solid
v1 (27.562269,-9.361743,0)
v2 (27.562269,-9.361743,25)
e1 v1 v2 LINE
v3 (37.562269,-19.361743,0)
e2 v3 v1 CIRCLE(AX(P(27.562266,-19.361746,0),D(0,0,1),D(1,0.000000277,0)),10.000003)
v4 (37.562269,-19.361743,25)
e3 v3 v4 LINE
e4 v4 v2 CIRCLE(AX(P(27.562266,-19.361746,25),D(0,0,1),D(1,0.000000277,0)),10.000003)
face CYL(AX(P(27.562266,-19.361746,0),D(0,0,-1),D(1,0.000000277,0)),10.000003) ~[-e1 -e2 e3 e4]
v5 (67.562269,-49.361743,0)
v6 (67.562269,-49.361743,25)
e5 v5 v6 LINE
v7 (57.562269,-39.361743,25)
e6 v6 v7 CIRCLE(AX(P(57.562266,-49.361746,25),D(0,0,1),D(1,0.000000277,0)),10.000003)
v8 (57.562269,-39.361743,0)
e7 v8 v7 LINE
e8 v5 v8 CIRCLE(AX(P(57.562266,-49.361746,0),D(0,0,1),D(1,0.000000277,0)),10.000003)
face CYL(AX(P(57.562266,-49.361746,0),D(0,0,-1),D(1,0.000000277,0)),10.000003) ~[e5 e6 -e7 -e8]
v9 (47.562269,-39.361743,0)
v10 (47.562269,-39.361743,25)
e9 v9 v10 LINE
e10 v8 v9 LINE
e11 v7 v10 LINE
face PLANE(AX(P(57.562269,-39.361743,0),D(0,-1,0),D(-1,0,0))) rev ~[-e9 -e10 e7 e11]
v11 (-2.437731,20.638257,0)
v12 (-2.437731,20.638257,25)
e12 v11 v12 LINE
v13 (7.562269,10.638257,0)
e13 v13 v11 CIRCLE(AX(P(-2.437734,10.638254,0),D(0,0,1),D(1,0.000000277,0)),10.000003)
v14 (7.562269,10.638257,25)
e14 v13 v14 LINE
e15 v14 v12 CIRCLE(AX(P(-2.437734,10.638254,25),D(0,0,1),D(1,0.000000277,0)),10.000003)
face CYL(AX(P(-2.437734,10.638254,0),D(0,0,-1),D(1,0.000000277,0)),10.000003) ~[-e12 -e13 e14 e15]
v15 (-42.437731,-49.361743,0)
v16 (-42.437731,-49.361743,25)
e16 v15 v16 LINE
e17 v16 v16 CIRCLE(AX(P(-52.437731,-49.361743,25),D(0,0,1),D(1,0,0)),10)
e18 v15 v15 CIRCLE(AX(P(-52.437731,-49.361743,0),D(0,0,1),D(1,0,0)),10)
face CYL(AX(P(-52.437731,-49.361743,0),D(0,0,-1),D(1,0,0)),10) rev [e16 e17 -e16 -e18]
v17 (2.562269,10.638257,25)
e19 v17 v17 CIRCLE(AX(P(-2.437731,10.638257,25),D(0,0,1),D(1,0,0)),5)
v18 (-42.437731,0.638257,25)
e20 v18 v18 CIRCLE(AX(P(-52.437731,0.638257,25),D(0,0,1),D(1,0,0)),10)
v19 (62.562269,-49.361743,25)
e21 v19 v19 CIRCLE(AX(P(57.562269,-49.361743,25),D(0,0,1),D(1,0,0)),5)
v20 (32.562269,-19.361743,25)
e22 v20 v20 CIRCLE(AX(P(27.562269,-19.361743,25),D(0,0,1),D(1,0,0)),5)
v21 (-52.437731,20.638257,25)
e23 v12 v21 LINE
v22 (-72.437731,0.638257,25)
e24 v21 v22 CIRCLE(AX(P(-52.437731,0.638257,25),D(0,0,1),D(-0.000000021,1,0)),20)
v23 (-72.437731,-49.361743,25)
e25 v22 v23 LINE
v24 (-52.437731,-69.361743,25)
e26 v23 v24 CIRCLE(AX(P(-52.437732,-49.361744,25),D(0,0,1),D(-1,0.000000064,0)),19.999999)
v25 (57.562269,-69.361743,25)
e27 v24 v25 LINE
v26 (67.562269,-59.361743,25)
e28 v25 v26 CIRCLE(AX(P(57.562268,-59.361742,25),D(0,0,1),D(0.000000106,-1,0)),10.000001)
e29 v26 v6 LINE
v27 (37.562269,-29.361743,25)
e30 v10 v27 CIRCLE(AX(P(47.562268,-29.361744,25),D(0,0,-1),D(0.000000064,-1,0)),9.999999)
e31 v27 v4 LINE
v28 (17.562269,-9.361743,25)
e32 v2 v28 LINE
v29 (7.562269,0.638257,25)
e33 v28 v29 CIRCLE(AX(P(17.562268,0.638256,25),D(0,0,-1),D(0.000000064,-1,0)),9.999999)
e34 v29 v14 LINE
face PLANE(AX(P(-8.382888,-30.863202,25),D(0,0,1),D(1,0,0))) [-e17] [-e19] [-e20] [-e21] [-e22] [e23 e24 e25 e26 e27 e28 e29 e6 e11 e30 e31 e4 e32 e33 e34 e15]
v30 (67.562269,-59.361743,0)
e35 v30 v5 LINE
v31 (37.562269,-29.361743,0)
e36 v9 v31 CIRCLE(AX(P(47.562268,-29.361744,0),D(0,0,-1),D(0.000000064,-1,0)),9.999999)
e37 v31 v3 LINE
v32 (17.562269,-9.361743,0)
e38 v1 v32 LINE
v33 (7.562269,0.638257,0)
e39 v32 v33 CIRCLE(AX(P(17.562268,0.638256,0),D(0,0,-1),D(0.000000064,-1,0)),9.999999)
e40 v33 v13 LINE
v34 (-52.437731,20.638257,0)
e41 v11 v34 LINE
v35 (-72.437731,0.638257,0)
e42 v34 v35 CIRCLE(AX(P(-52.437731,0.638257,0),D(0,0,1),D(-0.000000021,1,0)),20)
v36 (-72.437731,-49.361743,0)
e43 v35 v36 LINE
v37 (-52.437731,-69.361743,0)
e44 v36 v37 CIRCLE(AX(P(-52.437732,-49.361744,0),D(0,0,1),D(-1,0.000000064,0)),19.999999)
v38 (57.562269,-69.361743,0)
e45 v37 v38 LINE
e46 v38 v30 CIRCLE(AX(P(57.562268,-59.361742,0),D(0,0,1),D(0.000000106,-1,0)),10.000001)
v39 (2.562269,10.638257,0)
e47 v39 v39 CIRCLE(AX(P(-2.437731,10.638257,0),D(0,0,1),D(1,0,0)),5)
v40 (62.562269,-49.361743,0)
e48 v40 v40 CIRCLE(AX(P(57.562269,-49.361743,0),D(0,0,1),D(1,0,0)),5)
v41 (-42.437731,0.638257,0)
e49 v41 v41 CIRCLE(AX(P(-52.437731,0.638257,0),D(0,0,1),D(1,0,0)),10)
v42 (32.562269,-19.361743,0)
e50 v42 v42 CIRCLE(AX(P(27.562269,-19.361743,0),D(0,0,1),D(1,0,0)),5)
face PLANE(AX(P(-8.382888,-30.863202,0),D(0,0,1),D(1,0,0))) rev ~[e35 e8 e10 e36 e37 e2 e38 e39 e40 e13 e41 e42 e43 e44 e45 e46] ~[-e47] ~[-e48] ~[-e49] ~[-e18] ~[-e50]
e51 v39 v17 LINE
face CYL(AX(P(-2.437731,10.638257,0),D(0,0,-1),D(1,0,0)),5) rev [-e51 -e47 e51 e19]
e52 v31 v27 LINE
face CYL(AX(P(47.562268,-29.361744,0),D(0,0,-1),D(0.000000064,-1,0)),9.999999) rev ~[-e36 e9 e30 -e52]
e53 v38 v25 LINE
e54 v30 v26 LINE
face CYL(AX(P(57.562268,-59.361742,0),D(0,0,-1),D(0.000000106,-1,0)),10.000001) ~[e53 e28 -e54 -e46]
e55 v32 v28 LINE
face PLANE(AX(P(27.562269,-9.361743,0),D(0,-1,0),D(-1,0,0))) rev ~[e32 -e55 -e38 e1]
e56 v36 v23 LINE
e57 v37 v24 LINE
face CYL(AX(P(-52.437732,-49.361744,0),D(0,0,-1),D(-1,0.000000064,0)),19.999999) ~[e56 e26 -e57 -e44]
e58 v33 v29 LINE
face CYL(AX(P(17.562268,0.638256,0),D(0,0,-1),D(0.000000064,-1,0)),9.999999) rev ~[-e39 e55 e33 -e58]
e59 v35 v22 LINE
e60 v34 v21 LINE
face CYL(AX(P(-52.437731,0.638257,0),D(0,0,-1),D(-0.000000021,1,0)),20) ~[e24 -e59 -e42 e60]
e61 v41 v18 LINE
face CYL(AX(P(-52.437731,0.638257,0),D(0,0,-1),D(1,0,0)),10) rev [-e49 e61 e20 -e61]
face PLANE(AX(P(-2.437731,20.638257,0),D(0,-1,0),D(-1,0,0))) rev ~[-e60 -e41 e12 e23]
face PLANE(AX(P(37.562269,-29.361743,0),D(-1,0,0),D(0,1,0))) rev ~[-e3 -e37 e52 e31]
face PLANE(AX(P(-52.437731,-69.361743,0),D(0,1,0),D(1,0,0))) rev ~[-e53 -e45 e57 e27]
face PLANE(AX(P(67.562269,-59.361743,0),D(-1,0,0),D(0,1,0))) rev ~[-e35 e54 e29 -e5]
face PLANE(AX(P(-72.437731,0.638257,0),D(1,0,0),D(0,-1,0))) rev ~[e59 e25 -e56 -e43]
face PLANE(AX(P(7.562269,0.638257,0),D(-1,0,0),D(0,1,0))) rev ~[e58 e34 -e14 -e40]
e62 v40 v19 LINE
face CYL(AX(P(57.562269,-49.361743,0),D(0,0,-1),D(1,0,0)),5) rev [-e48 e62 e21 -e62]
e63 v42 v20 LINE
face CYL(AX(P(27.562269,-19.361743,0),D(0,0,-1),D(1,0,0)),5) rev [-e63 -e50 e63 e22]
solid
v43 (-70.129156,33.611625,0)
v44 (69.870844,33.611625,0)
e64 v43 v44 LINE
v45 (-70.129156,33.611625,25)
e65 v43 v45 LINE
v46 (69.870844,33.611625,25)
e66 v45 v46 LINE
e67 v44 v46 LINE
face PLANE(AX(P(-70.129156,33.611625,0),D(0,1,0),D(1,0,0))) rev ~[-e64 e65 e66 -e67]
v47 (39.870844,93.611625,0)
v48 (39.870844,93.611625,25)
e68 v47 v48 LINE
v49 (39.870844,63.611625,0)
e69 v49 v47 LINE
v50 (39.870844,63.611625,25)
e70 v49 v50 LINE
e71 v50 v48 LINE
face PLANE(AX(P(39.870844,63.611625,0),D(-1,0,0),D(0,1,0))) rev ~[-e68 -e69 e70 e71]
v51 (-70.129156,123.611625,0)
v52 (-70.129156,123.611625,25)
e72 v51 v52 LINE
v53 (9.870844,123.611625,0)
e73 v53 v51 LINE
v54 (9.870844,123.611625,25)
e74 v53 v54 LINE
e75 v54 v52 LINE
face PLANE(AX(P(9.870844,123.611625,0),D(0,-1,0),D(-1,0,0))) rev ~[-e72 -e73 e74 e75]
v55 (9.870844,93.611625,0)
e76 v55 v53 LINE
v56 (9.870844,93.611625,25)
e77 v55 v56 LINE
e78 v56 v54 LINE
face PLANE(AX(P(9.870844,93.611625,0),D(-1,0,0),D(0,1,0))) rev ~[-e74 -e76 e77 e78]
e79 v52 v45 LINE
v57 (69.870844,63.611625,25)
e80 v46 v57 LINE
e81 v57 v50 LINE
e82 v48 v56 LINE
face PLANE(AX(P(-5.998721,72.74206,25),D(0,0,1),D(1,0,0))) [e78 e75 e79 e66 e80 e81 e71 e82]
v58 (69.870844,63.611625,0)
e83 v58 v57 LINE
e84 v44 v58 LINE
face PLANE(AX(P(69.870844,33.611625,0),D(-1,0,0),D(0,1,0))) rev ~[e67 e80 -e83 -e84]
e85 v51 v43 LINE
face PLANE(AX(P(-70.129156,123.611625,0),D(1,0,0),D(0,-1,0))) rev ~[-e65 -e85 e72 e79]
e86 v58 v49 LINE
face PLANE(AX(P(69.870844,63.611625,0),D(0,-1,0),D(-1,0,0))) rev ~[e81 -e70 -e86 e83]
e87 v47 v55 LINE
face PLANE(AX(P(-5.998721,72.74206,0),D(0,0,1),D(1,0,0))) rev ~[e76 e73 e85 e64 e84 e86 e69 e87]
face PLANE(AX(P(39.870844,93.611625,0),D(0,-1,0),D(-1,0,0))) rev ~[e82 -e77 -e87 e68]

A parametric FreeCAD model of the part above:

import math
import FreeCAD as App
import Part
import Sketcher
from FreeCAD import Vector
Q = App.Units.Quantity

doc = App.newDocument("Part")
params = doc.addObject("Spreadsheet::Sheet", "Params")
for row, (alias, value) in enumerate([
    ("sketch1_diameter", "20 mm"),
    ("sketch1_diameter2", "10 mm"),
    ("sketch1_radius", "19.999999 mm"),
    ("sketch1_width", "140 mm"),
    ("sketch1_width2", "30 mm"),
    ("pad1_length", "25 mm"),
], start=1):
    params.set(f"A{row}", alias)
    params.set(f"B{row}", "=" + value)
    params.setAlias(f"B{row}", alias)

body = doc.addObject("PartDesign::Body", "Body")
body.AllowCompound = True

sketch1 = doc.addObject("Sketcher::SketchObject", "Sketch")
body.addObject(sketch1)
sketch1.AttachmentSupport = (doc.XY_Plane, [""])
sketch1.MapMode = "FlatFace"
sketch1.addGeometry(Part.ArcOfCircle(Part.Circle(Vector(-52.437732, -49.361744, 0), Vector(0, 0, 1), 19.999999), math.radians(179.999996), math.radians(270.000004)), False)
sketch1.addGeometry(Part.LineSegment(Vector(-52.437731, -69.361743, 0), Vector(57.562269, -69.361743, 0)), False)
sketch1.addGeometry(Part.ArcOfCircle(Part.Circle(Vector(57.562268, -59.361742, 0), Vector(0, 0, 1), 10.000001), math.radians(-89.999994), math.radians(-0.000006)), False)
sketch1.addGeometry(Part.LineSegment(Vector(67.562269, -59.361743, 0), Vector(67.562269, -49.361743, 0)), False)
sketch1.addGeometry(Part.ArcOfCircle(Part.Circle(Vector(57.562266, -49.361746, 0), Vector(0, 0, 1), 10.000003), math.radians(0.000016), math.radians(89.999984)), False)
sketch1.addGeometry(Part.LineSegment(Vector(57.562269, -39.361743, 0), Vector(47.562269, -39.361743, 0)), False)
sketch1.addGeometry(Part.ArcOfCircle(Part.Circle(Vector(47.562268, -29.361744, 0), Vector(0, 0, 1), 9.999999), math.radians(179.999996), math.radians(270.000004)), False)
sketch1.addGeometry(Part.LineSegment(Vector(37.562269, -29.361743, 0), Vector(37.562269, -19.361743, 0)), False)
sketch1.addGeometry(Part.ArcOfCircle(Part.Circle(Vector(27.562266, -19.361746, 0), Vector(0, 0, 1), 10.000003), math.radians(0.000016), math.radians(89.999984)), False)
sketch1.addGeometry(Part.LineSegment(Vector(27.562269, -9.361743, 0), Vector(17.562269, -9.361743, 0)), False)
sketch1.addGeometry(Part.ArcOfCircle(Part.Circle(Vector(17.562268, 0.638256, 0), Vector(0, 0, 1), 9.999999), math.radians(179.999996), math.radians(270.000004)), False)
sketch1.addGeometry(Part.LineSegment(Vector(7.562269, 0.638257, 0), Vector(7.562269, 10.638257, 0)), False)
sketch1.addGeometry(Part.ArcOfCircle(Part.Circle(Vector(-2.437734, 10.638254, 0), Vector(0, 0, 1), 10.000003), math.radians(0.000016), math.radians(89.999984)), False)
sketch1.addGeometry(Part.LineSegment(Vector(-2.437731, 20.638257, 0), Vector(-52.437731, 20.638257, 0)), False)
sketch1.addGeometry(Part.ArcOfCircle(Part.Circle(Vector(-52.437731, 0.638257, 0), Vector(0, 0, 1), 20), math.radians(90.000001), math.radians(179.999999)), False)
sketch1.addGeometry(Part.LineSegment(Vector(-72.437731, 0.638257, 0), Vector(-72.437731, -49.361743, 0)), False)
sketch1.addGeometry(Part.Circle(Vector(-52.437731, -49.361743, 0), Vector(0, 0, 1), 10), False)
sketch1.addGeometry(Part.Circle(Vector(57.562269, -49.361743, 0), Vector(0, 0, 1), 5), False)
sketch1.addGeometry(Part.Circle(Vector(-52.437731, 0.638257, 0), Vector(0, 0, 1), 10), False)
sketch1.addGeometry(Part.Circle(Vector(-2.437731, 10.638257, 0), Vector(0, 0, 1), 5), False)
sketch1.addGeometry(Part.Circle(Vector(27.562269, -19.361743, 0), Vector(0, 0, 1), 5), False)
sketch1.addGeometry(Part.LineSegment(Vector(-70.129156, 123.611625, 0), Vector(-70.129156, 33.611625, 0)), False)
sketch1.addGeometry(Part.LineSegment(Vector(-70.129156, 33.611625, 0), Vector(69.870844, 33.611625, 0)), False)
sketch1.addGeometry(Part.LineSegment(Vector(69.870844, 33.611625, 0), Vector(69.870844, 63.611625, 0)), False)
sketch1.addGeometry(Part.LineSegment(Vector(69.870844, 63.611625, 0), Vector(39.870844, 63.611625, 0)), False)
sketch1.addGeometry(Part.LineSegment(Vector(39.870844, 63.611625, 0), Vector(39.870844, 93.611625, 0)), False)
sketch1.addGeometry(Part.LineSegment(Vector(39.870844, 93.611625, 0), Vector(9.870844, 93.611625, 0)), False)
sketch1.addGeometry(Part.LineSegment(Vector(9.870844, 93.611625, 0), Vector(9.870844, 123.611625, 0)), False)
sketch1.addGeometry(Part.LineSegment(Vector(9.870844, 123.611625, 0), Vector(-70.129156, 123.611625, 0)), False)
sketch1.addConstraint(Sketcher.Constraint("Tangent", 0, 2, 1, 1))
sketch1.addConstraint(Sketcher.Constraint("Tangent", 1, 2, 2, 1))
sketch1.addConstraint(Sketcher.Constraint("Tangent", 2, 2, 3, 1))
sketch1.addConstraint(Sketcher.Constraint("Tangent", 3, 2, 4, 1))
sketch1.addConstraint(Sketcher.Constraint("Tangent", 4, 2, 5, 1))
sketch1.addConstraint(Sketcher.Constraint("Tangent", 5, 2, 6, 2))
sketch1.addConstraint(Sketcher.Constraint("Tangent", 6, 1, 7, 1))
sketch1.addConstraint(Sketcher.Constraint("Tangent", 7, 2, 8, 1))
sketch1.addConstraint(Sketcher.Constraint("Tangent", 8, 2, 9, 1))
sketch1.addConstraint(Sketcher.Constraint("Tangent", 9, 2, 10, 2))
sketch1.addConstraint(Sketcher.Constraint("Tangent", 10, 1, 11, 1))
sketch1.addConstraint(Sketcher.Constraint("Tangent", 11, 2, 12, 1))
sketch1.addConstraint(Sketcher.Constraint("Tangent", 12, 2, 13, 1))
sketch1.addConstraint(Sketcher.Constraint("Tangent", 13, 2, 14, 1))
sketch1.addConstraint(Sketcher.Constraint("Tangent", 14, 2, 15, 1))
sketch1.addConstraint(Sketcher.Constraint("Tangent", 15, 2, 0, 1))
sketch1.addConstraint(Sketcher.Constraint("Coincident", 21, 2, 22, 1))
sketch1.addConstraint(Sketcher.Constraint("Coincident", 22, 2, 23, 1))
sketch1.addConstraint(Sketcher.Constraint("Coincident", 23, 2, 24, 1))
sketch1.addConstraint(Sketcher.Constraint("Coincident", 24, 2, 25, 1))
sketch1.addConstraint(Sketcher.Constraint("Coincident", 25, 2, 26, 1))
sketch1.addConstraint(Sketcher.Constraint("Coincident", 26, 2, 27, 1))
sketch1.addConstraint(Sketcher.Constraint("Coincident", 27, 2, 28, 1))
sketch1.addConstraint(Sketcher.Constraint("Coincident", 28, 2, 21, 1))
sketch1.addConstraint(Sketcher.Constraint("Horizontal", 1))
sketch1.addConstraint(Sketcher.Constraint("Vertical", 3))
sketch1.addConstraint(Sketcher.Constraint("Horizontal", 5))
sketch1.addConstraint(Sketcher.Constraint("Vertical", 7))
sketch1.addConstraint(Sketcher.Constraint("Horizontal", 9))
sketch1.addConstraint(Sketcher.Constraint("Vertical", 11))
sketch1.addConstraint(Sketcher.Constraint("Horizontal", 13))
sketch1.addConstraint(Sketcher.Constraint("Vertical", 15))
sketch1.addConstraint(Sketcher.Constraint("Vertical", 21))
sketch1.addConstraint(Sketcher.Constraint("Horizontal", 22))
sketch1.addConstraint(Sketcher.Constraint("Vertical", 23))
sketch1.addConstraint(Sketcher.Constraint("Horizontal", 24))
sketch1.addConstraint(Sketcher.Constraint("Vertical", 25))
sketch1.addConstraint(Sketcher.Constraint("Horizontal", 26))
sketch1.addConstraint(Sketcher.Constraint("Vertical", 27))
sketch1.addConstraint(Sketcher.Constraint("Horizontal", 28))
sketch1.addConstraint(Sketcher.Constraint("Coincident", 16, 3, 0, 3))
sketch1.addConstraint(Sketcher.Constraint("Coincident", 17, 3, 4, 3))
sketch1.addConstraint(Sketcher.Constraint("Coincident", 18, 3, 14, 3))
sketch1.addConstraint(Sketcher.Constraint("Coincident", 19, 3, 12, 3))
sketch1.addConstraint(Sketcher.Constraint("Coincident", 20, 3, 8, 3))
sketch1.addConstraint(Sketcher.Constraint("Equal", 2, 4))
sketch1.addConstraint(Sketcher.Constraint("Equal", 2, 6))
sketch1.addConstraint(Sketcher.Constraint("Equal", 4, 8))
sketch1.addConstraint(Sketcher.Constraint("Equal", 6, 10))
sketch1.addConstraint(Sketcher.Constraint("Equal", 8, 12))
sketch1.addConstraint(Sketcher.Constraint("Equal", 0, 14))
sketch1.addConstraint(Sketcher.Constraint("Equal", 10, 16))
sketch1.addConstraint(Sketcher.Constraint("Equal", 16, 18))
sketch1.addConstraint(Sketcher.Constraint("Equal", 17, 19))
sketch1.addConstraint(Sketcher.Constraint("Equal", 19, 20))
sketch1.addConstraint(Sketcher.Constraint("Horizontal", 0, 3, 4, 3))
sketch1.addConstraint(Sketcher.Constraint("Horizontal", 10, 3, 14, 3))
sketch1.addConstraint(Sketcher.Constraint("Equal", 5, 9))
sketch1.addConstraint(Sketcher.Constraint("Equal", 24, 26))
sketch1.addConstraint(Sketcher.Constraint("Equal", 9, 3))
sketch1.addConstraint(Sketcher.Constraint("Equal", 3, 7))
sketch1.addConstraint(Sketcher.Constraint("Equal", 13, 15))
sketch1.addConstraint(Sketcher.Constraint("Equal", 26, 23))
sketch1.addConstraint(Sketcher.Constraint("Equal", 23, 25))
sketch1.addConstraint(Sketcher.Constraint("Equal", 25, 27))
sketch1.addConstraint(Sketcher.Constraint("Diameter", 16, Q("20 mm")))
sketch1.addConstraint(Sketcher.Constraint("Diameter", 17, Q("10 mm")))
sketch1.addConstraint(Sketcher.Constraint("Radius", 0, Q("19.999999 mm")))
sketch1.addConstraint(Sketcher.Constraint("DistanceX", 22, 1, 22, 2, Q("140 mm")))
sketch1.addConstraint(Sketcher.Constraint("DistanceX", 24, 2, 24, 1, Q("30 mm")))
sketch1.addConstraint(Sketcher.Constraint("DistanceY", 2, 3, -1, 1, Q("59.361742 mm")))
sketch1.addConstraint(Sketcher.Constraint("DistanceX", -1, 1, 6, 3, Q("47.562268 mm")))
sketch1.addConstraint(Sketcher.Constraint("DistanceY", 14, 3, 21, 2, Q("32.973368 mm")))
sketch1.addConstraint(Sketcher.Constraint("DistanceX", 21, 2, -1, 1, Q("70.129156 mm")))
sketch1.setExpression("Constraints[65]", "Params.sketch1_diameter")
sketch1.setExpression("Constraints[66]", "Params.sketch1_diameter2")
sketch1.setExpression("Constraints[67]", "Params.sketch1_radius")
sketch1.setExpression("Constraints[68]", "Params.sketch1_width")
sketch1.setExpression("Constraints[69]", "Params.sketch1_width2")
pad1 = doc.addObject("PartDesign::Pad", "Pad")
body.addObject(pad1)
pad1.Profile = sketch1
pad1.setExpression("Length", "Params.pad1_length")

doc.recompute()
